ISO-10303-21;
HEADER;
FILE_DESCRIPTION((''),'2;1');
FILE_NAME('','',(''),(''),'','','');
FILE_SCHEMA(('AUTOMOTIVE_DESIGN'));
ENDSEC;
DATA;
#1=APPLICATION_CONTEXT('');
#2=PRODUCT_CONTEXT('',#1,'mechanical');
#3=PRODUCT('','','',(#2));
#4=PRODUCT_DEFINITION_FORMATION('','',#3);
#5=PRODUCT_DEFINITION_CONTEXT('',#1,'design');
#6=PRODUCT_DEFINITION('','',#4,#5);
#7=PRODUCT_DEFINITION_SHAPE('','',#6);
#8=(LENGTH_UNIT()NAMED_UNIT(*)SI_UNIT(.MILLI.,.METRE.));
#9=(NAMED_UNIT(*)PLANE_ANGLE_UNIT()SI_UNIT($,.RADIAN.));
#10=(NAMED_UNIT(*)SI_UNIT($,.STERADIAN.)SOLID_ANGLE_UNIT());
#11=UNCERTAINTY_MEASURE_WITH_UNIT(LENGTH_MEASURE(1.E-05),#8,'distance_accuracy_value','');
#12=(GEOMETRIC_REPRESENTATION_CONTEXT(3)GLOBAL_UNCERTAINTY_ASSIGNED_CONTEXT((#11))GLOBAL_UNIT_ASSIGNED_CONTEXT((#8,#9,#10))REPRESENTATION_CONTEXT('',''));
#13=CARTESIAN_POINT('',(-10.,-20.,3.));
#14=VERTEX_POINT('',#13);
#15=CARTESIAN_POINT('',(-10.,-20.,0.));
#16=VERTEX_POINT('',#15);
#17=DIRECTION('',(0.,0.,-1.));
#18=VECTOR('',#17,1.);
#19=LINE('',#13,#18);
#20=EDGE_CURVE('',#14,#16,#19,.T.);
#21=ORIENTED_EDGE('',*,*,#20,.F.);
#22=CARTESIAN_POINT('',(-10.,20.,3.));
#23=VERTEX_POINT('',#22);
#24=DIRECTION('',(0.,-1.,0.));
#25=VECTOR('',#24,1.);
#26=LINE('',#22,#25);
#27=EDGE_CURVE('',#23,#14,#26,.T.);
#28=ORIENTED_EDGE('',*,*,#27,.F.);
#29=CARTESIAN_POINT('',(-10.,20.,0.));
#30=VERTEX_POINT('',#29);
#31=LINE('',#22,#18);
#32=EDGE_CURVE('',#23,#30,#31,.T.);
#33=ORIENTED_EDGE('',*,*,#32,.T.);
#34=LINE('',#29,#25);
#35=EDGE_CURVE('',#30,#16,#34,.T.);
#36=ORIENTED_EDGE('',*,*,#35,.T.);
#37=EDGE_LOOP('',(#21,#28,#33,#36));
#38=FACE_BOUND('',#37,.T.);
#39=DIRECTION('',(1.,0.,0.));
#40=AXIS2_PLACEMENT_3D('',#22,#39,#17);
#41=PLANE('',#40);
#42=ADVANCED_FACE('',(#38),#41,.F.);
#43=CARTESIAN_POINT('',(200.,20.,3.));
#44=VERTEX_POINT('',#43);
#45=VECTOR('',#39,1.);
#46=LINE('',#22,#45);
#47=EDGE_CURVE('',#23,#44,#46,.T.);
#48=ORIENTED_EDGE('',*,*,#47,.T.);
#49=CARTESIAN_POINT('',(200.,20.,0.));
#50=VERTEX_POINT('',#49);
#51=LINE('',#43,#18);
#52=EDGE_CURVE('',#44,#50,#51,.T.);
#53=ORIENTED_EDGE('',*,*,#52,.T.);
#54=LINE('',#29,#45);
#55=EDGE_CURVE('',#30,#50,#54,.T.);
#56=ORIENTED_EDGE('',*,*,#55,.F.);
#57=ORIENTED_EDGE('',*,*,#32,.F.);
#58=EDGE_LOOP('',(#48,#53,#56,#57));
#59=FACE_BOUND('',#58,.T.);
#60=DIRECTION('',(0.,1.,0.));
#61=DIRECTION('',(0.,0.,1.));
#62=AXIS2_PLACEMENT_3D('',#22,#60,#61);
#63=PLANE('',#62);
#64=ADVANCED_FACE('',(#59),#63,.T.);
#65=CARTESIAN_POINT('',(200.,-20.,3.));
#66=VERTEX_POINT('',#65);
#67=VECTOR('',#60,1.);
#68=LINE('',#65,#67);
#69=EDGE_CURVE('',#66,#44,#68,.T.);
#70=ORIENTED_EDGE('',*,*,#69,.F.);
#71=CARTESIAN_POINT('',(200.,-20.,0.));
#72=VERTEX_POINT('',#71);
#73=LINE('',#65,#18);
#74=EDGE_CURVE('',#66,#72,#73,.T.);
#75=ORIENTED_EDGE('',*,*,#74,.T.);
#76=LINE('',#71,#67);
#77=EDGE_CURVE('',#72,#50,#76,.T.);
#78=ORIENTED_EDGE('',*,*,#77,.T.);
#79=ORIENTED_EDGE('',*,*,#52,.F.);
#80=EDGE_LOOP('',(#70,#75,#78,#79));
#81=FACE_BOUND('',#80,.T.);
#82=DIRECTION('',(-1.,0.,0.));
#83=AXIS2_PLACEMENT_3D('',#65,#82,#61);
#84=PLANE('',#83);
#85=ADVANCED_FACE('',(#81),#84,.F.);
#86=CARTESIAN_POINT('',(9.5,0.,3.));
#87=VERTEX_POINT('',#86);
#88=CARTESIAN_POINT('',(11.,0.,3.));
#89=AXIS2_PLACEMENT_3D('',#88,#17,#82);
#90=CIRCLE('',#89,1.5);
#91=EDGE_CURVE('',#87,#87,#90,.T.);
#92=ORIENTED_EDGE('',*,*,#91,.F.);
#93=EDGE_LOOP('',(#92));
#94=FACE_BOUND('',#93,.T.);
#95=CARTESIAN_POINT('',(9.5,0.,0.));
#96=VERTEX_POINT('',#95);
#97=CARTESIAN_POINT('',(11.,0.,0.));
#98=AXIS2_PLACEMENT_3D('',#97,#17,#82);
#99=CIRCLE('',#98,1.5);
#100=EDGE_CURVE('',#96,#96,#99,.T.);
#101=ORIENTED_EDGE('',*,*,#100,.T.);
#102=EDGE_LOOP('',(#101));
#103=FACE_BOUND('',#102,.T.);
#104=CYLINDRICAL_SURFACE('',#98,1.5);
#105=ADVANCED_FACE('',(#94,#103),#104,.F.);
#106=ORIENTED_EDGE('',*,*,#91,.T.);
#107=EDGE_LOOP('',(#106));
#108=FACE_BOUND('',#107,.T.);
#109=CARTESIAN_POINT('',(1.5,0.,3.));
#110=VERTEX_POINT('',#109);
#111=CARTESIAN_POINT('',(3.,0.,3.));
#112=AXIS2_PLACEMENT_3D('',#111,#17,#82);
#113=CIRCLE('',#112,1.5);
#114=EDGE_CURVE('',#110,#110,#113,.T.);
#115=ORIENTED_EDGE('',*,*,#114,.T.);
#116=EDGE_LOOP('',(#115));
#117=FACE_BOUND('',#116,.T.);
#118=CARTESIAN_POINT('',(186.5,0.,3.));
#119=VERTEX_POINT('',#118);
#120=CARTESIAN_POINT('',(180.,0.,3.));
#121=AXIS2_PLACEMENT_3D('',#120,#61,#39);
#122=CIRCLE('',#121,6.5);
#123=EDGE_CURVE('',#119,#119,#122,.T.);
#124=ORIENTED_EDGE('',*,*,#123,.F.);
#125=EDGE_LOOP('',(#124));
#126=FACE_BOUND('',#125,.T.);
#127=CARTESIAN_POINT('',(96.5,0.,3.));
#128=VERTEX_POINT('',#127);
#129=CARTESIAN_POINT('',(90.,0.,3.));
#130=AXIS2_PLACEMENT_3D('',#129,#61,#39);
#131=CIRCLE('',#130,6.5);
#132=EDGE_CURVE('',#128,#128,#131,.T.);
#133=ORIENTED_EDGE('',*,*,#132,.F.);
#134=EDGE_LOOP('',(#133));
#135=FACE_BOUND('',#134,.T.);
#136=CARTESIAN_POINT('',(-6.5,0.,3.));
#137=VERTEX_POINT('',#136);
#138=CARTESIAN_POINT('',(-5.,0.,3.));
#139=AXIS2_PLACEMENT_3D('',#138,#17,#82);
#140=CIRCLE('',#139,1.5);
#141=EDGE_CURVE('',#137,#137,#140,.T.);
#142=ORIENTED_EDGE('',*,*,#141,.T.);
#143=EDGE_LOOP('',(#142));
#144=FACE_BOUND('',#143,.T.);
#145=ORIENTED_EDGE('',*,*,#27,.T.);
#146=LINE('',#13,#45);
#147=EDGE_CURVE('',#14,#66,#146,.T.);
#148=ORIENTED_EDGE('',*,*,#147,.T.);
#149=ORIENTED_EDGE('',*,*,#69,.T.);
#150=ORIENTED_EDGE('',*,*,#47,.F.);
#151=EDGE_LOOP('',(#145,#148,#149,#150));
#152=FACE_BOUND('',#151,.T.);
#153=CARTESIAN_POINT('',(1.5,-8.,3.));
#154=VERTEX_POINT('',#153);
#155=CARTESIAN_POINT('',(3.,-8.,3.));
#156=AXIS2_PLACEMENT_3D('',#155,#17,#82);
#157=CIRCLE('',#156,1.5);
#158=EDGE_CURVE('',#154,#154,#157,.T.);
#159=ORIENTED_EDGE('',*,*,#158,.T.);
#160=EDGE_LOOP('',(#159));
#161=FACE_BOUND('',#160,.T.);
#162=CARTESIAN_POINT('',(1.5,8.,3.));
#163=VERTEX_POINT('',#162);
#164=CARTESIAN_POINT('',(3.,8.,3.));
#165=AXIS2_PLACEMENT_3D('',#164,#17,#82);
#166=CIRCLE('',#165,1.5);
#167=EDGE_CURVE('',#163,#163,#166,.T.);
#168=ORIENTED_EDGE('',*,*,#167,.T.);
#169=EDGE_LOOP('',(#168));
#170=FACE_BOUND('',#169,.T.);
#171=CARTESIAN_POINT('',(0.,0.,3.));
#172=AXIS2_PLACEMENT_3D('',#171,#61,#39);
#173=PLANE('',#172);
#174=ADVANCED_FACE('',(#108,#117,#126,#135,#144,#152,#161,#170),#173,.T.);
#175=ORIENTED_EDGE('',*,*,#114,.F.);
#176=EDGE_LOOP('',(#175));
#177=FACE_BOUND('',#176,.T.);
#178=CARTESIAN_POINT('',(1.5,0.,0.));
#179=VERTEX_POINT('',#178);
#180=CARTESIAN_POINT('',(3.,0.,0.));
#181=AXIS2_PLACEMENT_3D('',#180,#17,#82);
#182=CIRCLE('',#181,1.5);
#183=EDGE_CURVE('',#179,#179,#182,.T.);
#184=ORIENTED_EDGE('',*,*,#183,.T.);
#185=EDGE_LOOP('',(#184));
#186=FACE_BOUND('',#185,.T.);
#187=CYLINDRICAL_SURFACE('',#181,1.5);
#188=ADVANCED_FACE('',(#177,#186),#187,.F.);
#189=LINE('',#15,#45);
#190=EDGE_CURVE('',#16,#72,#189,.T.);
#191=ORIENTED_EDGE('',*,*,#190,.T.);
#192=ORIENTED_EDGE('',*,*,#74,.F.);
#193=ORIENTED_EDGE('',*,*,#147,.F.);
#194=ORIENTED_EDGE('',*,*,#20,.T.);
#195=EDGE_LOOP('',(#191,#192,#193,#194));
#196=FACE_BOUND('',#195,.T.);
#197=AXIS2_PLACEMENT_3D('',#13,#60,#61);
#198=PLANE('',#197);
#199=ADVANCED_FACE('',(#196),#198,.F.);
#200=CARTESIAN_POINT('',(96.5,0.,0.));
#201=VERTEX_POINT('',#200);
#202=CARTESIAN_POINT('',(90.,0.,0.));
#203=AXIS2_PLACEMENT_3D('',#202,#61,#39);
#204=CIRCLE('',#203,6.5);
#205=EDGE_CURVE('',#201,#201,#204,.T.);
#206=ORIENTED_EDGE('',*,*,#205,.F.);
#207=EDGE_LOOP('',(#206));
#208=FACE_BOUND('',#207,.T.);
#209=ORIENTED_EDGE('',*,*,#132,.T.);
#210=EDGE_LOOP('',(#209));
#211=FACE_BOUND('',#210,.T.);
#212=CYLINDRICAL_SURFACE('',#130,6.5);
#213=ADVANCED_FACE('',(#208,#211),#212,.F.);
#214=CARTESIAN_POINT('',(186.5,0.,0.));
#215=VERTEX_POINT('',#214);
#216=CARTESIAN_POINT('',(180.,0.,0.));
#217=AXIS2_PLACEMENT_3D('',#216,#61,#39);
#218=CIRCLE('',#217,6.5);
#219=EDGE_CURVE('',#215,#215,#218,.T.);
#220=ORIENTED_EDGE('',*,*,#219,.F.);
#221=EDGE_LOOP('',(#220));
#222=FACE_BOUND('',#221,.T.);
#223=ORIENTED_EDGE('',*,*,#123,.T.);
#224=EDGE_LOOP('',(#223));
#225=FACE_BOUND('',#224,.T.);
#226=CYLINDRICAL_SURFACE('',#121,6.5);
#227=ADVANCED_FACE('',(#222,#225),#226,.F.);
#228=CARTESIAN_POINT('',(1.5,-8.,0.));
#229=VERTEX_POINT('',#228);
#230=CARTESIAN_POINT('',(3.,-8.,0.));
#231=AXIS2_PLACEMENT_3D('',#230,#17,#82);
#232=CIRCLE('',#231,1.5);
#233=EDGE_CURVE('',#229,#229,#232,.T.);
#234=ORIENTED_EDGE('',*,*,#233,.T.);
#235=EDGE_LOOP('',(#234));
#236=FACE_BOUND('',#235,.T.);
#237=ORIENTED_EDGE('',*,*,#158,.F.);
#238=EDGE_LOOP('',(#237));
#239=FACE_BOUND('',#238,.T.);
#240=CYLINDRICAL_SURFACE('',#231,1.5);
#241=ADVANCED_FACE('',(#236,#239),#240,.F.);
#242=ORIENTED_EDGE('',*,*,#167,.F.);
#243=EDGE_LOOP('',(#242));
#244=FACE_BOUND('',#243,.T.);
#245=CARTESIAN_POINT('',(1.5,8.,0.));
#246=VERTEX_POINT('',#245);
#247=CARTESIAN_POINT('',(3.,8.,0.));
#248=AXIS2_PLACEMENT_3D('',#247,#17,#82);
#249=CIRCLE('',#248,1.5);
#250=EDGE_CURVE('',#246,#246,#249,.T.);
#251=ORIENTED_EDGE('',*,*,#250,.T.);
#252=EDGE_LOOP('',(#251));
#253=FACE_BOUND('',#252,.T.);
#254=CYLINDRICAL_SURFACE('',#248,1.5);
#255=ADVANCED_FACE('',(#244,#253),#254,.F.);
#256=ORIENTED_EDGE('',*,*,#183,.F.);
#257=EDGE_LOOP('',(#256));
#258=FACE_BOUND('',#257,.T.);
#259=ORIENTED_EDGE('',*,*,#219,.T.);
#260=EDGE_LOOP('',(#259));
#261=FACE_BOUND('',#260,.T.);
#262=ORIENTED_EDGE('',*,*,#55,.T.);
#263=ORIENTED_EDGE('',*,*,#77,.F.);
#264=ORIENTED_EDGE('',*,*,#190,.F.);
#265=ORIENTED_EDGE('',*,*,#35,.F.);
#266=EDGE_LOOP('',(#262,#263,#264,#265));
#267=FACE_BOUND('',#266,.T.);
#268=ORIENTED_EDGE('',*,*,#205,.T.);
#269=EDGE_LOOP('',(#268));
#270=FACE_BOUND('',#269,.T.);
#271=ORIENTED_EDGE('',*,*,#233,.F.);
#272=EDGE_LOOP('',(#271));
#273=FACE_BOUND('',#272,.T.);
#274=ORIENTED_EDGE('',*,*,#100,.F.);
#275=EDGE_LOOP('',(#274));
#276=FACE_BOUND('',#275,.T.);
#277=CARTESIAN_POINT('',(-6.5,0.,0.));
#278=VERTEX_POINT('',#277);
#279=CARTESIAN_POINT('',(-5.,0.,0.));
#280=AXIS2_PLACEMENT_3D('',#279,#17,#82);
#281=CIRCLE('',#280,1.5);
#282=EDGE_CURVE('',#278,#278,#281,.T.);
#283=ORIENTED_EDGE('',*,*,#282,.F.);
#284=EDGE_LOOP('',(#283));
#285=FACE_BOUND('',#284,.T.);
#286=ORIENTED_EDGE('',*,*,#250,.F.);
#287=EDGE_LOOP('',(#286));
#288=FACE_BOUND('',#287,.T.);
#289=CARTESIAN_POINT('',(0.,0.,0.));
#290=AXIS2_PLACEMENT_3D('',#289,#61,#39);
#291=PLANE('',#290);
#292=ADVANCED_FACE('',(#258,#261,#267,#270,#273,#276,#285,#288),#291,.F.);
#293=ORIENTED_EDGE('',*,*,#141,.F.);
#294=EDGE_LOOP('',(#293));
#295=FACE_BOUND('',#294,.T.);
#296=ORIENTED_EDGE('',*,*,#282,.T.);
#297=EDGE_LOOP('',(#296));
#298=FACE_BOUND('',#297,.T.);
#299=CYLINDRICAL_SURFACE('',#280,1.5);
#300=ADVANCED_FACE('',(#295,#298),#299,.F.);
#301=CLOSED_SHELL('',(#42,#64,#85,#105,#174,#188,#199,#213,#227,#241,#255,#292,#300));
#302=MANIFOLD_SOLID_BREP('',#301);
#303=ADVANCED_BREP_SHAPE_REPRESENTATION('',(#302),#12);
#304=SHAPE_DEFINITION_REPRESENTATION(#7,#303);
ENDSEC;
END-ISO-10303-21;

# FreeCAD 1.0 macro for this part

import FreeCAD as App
import Part
import Sketcher

doc = App.newDocument("Part")
body = doc.addObject("PartDesign::Body", "Body")

# Sketch on XY plane
sketch1 = body.newObject("Sketcher::SketchObject", "Sketch")
sketch1.AttachmentSupport = (doc.getObject("XY_Plane"), [""])
sketch1.MapMode = "FlatFace"
sketch1.addGeometry([
    Part.LineSegment(App.Vector(-10, 20, 0), App.Vector(-10, -20, 0)),
    Part.LineSegment(App.Vector(-10, -20, 0), App.Vector(200, -20, 0)),
    Part.LineSegment(App.Vector(200, -20, 0), App.Vector(200, 20, 0)),
    Part.LineSegment(App.Vector(200, 20, 0), App.Vector(-10, 20, 0)),
], False)
sketch1.addConstraint([
    Sketcher.Constraint("Coincident", 0, 2, 1, 1),
    Sketcher.Constraint("Coincident", 1, 2, 2, 1),
    Sketcher.Constraint("Coincident", 2, 2, 3, 1),
    Sketcher.Constraint("Coincident", 3, 2, 0, 1),
    Sketcher.Constraint("Vertical", 0),
    Sketcher.Constraint("Horizontal", 1),
    Sketcher.Constraint("Vertical", 2),
    Sketcher.Constraint("Horizontal", 3),
    Sketcher.Constraint("DistanceX", 1, 1, 1, 2, 210.0),
    Sketcher.Constraint("DistanceY", 0, 2, 0, 1, 40.0),
    Sketcher.Constraint("DistanceX", 0, 2, -1, 1, 10.0),
    Sketcher.Constraint("DistanceY", 0, 2, -1, 1, 20.0),
])
pad1 = body.newObject("PartDesign::Pad", "Pad")
pad1.Profile = sketch1
pad1.Length = 3

# Sketch on XY plane
sketch2 = body.newObject("Sketcher::SketchObject", "Sketch001")
sketch2.AttachmentSupport = (doc.getObject("XY_Plane"), [""])
sketch2.MapMode = "FlatFace"
sketch2.addGeometry([
    Part.Circle(App.Vector(3, 8, 0), App.Vector(0, 0, 1), 1.5),  # 0
    Part.Circle(App.Vector(11, 0, 0), App.Vector(0, 0, 1), 1.5),  # 1
    Part.Circle(App.Vector(-5, 0, 0), App.Vector(0, 0, 1), 1.5),  # 2
    Part.Circle(App.Vector(3, -8, 0), App.Vector(0, 0, 1), 1.5),  # 3
    Part.Circle(App.Vector(3, 0, 0), App.Vector(0, 0, 1), 1.5),  # 4
], False)
sketch2.addConstraint([
    Sketcher.Constraint("Equal", 0, 1),
    Sketcher.Constraint("Equal", 1, 2),
    Sketcher.Constraint("Equal", 2, 3),
    Sketcher.Constraint("Equal", 3, 4),
    Sketcher.Constraint("Symmetric", 0, 3, 3, 3, -1),
    Sketcher.Constraint("PointOnObject", 1, 3, -1),
    Sketcher.Constraint("PointOnObject", 2, 3, -1),
    Sketcher.Constraint("PointOnObject", 4, 3, -1),
    Sketcher.Constraint("Vertical", 3, 3, 4, 3),
    Sketcher.Constraint("Diameter", 0, 3.0),
    Sketcher.Constraint("DistanceX", -1, 1, 0, 3, 3.0),
    Sketcher.Constraint("DistanceY", -1, 1, 0, 3, 8.0),
    Sketcher.Constraint("DistanceX", -1, 1, 1, 3, 11.0),
    Sketcher.Constraint("DistanceX", 2, 3, -1, 1, 5.0),
])
doc.recompute()
hole = body.newObject("PartDesign::Hole", "Hole")
hole.Profile = sketch2
hole.ThreadType = "None"
hole.Diameter = 3
hole.DepthType = "ThroughAll"
hole.Reversed = True

# Sketch on XY plane
sketch3 = body.newObject("Sketcher::SketchObject", "Sketch002")
sketch3.AttachmentSupport = (doc.getObject("XY_Plane"), [""])
sketch3.MapMode = "FlatFace"
sketch3.AttachmentOffset = App.Placement(App.Vector(0, 0, 3), App.Rotation())
sketch3.addGeometry([
    Part.Circle(App.Vector(90, 0, 0), App.Vector(0, 0, 1), 6.5),
    Part.Circle(App.Vector(180, 0, 0), App.Vector(0, 0, 1), 6.5),
], False)
sketch3.addConstraint([
    Sketcher.Constraint("Equal", 0, 1),
    Sketcher.Constraint("PointOnObject", 0, 3, -1),
    Sketcher.Constraint("PointOnObject", 1, 3, -1),
    Sketcher.Constraint("Diameter", 0, 13.0),
    Sketcher.Constraint("DistanceX", -1, 1, 0, 3, 90.0),
    Sketcher.Constraint("DistanceX", -1, 1, 1, 3, 180.0),
])
doc.recompute()
hole2 = body.newObject("PartDesign::Hole", "Hole001")
hole2.Profile = sketch3
hole2.ThreadType = "None"
hole2.Diameter = 13
hole2.DepthType = "ThroughAll"

doc.recompute()
